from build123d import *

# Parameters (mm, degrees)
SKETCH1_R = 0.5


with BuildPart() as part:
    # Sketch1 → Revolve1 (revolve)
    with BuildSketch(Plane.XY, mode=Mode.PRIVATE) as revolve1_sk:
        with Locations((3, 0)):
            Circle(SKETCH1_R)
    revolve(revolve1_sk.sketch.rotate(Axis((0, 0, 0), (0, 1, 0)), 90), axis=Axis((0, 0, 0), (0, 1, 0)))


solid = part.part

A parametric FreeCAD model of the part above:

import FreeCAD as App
import Part
import Sketcher

V = App.Vector
Q = App.Units.Quantity

doc = App.newDocument("Part")
params = doc.addObject("Spreadsheet::Sheet", "Params")
for row, (alias, value) in enumerate([
    ("sketch1_diameter", "1 mm"),
    ("revolution_angle", "360 deg"),
], start=1):
    params.set(f"A{row}", alias)
    params.set(f"B{row}", "=" + value)
    params.setAlias(f"B{row}", alias)

body = doc.addObject("PartDesign::Body", "Body")

sketch1 = body.newObject("Sketcher::SketchObject", "Sketch")
sketch1.AttachmentSupport = (doc.getObject("XY_Plane"), [""])
sketch1.MapMode = "FlatFace"
sketch1.addGeometry(Part.Circle(V(3, 0, 0), V(0, 0, 1), 0.5), False)
sketch1.addConstraint([
    Sketcher.Constraint("PointOnObject", 0, 3, -1),
    Sketcher.Constraint("Diameter", 0, Q("1 mm")),
    Sketcher.Constraint("DistanceX", -1, 1, 0, 3, Q("3 mm")),
])
sketch1.setExpression("Constraints[1]", "Params.sketch1_diameter")
revolution = body.newObject("PartDesign::Revolution", "Revolution")
revolution.Profile = sketch1
revolution.ReferenceAxis = (sketch1, ["V_Axis"])
revolution.setExpression("Angle", "Params.revolution_angle")

doc.recompute()
